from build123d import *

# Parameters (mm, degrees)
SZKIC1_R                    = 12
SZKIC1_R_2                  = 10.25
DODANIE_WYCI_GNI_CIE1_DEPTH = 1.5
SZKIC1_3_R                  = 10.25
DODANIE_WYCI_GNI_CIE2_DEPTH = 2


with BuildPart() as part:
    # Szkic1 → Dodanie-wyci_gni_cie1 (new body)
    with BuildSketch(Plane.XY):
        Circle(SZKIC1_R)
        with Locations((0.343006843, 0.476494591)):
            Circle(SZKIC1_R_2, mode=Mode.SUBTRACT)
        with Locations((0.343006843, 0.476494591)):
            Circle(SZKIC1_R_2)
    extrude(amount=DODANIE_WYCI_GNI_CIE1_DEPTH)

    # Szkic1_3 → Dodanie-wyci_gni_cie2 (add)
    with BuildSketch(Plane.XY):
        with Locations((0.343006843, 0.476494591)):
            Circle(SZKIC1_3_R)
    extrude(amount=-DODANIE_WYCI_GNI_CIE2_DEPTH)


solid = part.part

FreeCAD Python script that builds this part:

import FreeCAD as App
import Part
import Sketcher
Q = App.Units.Quantity

doc = App.newDocument("Part")
params = doc.addObject("Spreadsheet::Sheet", "Params")
for row, (alias, value) in enumerate([
    ("sketch1_diameter", "24 mm"),
    ("pad1_length", "1.5 mm"),
    ("sketch2_diameter", "20.5 mm"),
    ("pad2_length", "2 mm"),
], start=1):
    params.set(f"A{row}", alias)
    params.set(f"B{row}", "=" + value)
    params.setAlias(f"B{row}", alias)

body = doc.addObject("PartDesign::Body", "Body")

sketch1 = body.newObject("Sketcher::SketchObject", "Sketch")
sketch1.AttachmentSupport = (doc.getObject("XY_Plane"), [""])
sketch1.MapMode = "FlatFace"
sketch1.addGeometry(Part.Circle(App.Vector(0, 0, 0), App.Vector(0, 0, 1), 12), False)
sketch1.addConstraint([
    Sketcher.Constraint("Coincident", 0, 3, -1, 1),
    Sketcher.Constraint("Diameter", 0, Q("24 mm")),
])
sketch1.setExpression("Constraints[1]", "Params.sketch1_diameter")
pad1 = body.newObject("PartDesign::Pad", "Pad")
pad1.Profile = sketch1
pad1.setExpression("Length", "Params.pad1_length")

sketch2 = body.newObject("Sketcher::SketchObject", "Sketch001")
sketch2.AttachmentSupport = (doc.getObject("XY_Plane"), [""])
sketch2.MapMode = "FlatFace"
sketch2.addGeometry(Part.Circle(App.Vector(0.343007, 0.476495, 0), App.Vector(0, 0, 1), 10.25), False)
sketch2.addConstraint([
    Sketcher.Constraint("Diameter", 0, Q("20.5 mm")),
    Sketcher.Constraint("DistanceX", -1, 1, 0, 3, Q("0.343007 mm")),
    Sketcher.Constraint("DistanceY", -1, 1, 0, 3, Q("0.476495 mm")),
])
sketch2.setExpression("Constraints[0]", "Params.sketch2_diameter")
pad2 = body.newObject("PartDesign::Pad", "Pad001")
pad2.Profile = sketch2
pad2.setExpression("Length", "Params.pad2_length")
pad2.Reversed = True

doc.recompute()
